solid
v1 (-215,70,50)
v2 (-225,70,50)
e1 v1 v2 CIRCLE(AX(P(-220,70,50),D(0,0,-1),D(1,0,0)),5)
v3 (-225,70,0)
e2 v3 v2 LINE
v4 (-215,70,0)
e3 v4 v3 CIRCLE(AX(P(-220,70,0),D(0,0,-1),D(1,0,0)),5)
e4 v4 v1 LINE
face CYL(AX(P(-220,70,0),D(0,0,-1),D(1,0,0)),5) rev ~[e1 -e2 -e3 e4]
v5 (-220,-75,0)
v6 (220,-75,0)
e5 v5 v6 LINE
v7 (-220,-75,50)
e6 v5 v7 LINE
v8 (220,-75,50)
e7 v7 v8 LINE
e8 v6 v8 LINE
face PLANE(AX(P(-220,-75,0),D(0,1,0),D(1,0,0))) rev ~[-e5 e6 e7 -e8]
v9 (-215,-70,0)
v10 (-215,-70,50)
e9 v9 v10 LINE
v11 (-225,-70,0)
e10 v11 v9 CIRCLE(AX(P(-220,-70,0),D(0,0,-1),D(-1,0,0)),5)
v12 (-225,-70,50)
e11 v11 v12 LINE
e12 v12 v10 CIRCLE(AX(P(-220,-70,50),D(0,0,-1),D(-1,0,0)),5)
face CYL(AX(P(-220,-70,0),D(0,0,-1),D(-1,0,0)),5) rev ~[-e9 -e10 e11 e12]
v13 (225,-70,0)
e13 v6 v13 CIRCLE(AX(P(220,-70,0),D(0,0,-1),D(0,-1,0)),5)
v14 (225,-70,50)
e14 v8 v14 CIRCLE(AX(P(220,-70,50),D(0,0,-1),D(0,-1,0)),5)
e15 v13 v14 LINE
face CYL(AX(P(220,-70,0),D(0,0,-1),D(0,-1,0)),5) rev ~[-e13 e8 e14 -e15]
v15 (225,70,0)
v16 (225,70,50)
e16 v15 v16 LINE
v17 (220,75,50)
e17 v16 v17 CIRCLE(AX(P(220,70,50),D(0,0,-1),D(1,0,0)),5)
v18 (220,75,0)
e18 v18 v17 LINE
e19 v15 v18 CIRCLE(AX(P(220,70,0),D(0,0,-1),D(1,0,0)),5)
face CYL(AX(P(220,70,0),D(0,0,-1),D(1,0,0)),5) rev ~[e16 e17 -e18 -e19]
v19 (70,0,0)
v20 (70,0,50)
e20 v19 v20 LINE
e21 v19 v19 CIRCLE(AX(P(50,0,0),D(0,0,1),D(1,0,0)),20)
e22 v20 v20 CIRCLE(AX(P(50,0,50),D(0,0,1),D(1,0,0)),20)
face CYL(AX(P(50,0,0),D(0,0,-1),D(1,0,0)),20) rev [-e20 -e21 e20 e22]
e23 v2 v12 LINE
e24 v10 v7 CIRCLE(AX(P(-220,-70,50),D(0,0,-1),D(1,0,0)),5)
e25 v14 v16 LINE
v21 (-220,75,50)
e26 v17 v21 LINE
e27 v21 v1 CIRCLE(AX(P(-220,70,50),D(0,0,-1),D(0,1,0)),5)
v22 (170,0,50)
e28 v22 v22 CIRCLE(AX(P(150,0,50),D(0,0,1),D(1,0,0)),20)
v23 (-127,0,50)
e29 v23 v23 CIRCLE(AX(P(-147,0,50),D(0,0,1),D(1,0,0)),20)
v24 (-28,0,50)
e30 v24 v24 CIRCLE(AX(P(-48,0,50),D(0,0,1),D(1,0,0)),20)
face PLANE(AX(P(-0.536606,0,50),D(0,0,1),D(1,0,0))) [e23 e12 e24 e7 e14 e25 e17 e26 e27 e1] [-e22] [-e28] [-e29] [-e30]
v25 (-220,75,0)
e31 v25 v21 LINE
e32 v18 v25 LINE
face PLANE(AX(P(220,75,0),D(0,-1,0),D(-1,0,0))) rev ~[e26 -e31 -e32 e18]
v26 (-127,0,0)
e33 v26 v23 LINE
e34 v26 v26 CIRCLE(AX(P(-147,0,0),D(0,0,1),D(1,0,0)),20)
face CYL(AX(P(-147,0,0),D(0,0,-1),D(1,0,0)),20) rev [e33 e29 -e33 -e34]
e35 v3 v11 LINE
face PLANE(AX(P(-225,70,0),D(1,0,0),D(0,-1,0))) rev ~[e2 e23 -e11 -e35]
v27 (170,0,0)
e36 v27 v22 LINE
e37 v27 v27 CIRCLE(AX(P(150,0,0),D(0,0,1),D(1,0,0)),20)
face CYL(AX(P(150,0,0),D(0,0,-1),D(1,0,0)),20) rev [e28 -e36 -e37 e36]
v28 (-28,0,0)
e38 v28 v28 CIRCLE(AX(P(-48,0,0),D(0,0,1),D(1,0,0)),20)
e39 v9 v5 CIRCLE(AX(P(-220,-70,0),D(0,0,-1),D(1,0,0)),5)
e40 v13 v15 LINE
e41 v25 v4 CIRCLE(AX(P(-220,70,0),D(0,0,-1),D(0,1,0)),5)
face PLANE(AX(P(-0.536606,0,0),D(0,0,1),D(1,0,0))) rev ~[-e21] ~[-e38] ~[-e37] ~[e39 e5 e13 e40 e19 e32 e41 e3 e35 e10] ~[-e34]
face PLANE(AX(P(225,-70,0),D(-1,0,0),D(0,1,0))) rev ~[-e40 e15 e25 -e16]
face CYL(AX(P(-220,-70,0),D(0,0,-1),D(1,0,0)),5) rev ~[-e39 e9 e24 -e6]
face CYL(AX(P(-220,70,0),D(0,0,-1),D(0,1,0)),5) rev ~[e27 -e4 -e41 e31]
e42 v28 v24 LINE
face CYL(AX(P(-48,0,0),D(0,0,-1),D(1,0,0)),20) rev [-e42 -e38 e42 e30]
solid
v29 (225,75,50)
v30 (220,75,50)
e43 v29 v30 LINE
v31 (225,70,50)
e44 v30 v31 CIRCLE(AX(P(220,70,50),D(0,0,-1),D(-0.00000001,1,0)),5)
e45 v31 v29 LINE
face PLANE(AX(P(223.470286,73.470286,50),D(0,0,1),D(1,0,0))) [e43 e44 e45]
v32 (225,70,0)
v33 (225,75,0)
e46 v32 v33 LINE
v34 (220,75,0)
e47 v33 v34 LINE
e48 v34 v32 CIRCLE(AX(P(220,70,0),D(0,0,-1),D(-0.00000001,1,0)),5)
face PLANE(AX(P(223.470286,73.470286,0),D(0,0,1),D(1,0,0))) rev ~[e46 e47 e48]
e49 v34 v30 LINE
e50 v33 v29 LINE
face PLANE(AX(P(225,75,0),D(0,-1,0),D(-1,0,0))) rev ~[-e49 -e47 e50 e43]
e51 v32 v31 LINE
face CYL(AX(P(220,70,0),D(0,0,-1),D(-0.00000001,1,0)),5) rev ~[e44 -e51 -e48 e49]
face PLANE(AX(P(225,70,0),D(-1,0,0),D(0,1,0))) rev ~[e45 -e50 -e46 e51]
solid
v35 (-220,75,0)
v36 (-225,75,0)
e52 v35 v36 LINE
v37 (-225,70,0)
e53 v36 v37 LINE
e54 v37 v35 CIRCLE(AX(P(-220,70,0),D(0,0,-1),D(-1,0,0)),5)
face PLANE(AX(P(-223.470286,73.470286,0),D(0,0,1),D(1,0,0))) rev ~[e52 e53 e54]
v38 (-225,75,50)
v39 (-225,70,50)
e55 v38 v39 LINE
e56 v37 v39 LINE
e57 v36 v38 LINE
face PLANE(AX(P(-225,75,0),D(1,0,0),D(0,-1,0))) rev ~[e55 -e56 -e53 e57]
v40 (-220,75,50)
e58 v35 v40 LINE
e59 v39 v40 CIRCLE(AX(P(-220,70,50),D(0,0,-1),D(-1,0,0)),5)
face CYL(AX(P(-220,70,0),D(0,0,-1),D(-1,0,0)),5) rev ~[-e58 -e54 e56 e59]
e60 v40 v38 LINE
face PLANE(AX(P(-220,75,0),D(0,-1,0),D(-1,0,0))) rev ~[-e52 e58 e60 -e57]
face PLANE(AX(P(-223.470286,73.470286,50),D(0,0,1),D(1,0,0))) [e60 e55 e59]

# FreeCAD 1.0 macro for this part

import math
import FreeCAD as App
import Part
import Sketcher

doc = App.newDocument("Part")
body = doc.addObject("PartDesign::Body", "Body")

# Sketch on XY plane
sketch1 = body.newObject("Sketcher::SketchObject", "Sketch")
sketch1.AttachmentSupport = (doc.getObject("XY_Plane"), [""])
sketch1.MapMode = "FlatFace"
sketch1.addGeometry([
    Part.LineSegment(App.Vector(-220, 75, 0), App.Vector(-225, 75, 0)),
    Part.LineSegment(App.Vector(-225, 75, 0), App.Vector(-225, 70, 0)),
    Part.ArcOfCircle(Part.Circle(App.Vector(-220, 70, 0), App.Vector(0, 0, 1), 5), math.radians(90), math.radians(180)),
], False)
sketch1.addConstraint([
    Sketcher.Constraint("Coincident", 0, 2, 1, 1),
    Sketcher.Constraint("Tangent", 1, 2, 2, 2),
    Sketcher.Constraint("Tangent", 2, 1, 0, 1),
    Sketcher.Constraint("Horizontal", 0),
    Sketcher.Constraint("Vertical", 1),
    Sketcher.Constraint("Radius", 2, 5.0),
    Sketcher.Constraint("DistanceX", 2, 3, -1, 1, 220.0),
    Sketcher.Constraint("DistanceY", -1, 1, 2, 3, 70.0),
])
pad1 = body.newObject("PartDesign::Pad", "Pad")
pad1.Profile = sketch1
pad1.Length = 50
body2 = doc.addObject("PartDesign::Body", "Body001")

# Sketch on XY plane
sketch2 = body2.newObject("Sketcher::SketchObject", "Sketch001")
sketch2.AttachmentSupport = (doc.getObject("XY_Plane001"), [""])
sketch2.MapMode = "FlatFace"
sketch2.addGeometry([
    Part.LineSegment(App.Vector(220, 75, 0), App.Vector(-220, 75, 0)),  # 0
    Part.ArcOfCircle(Part.Circle(App.Vector(-220, 70, 0), App.Vector(0, 0, 1), 5), math.radians(0), math.radians(90)),  # 1
    Part.ArcOfCircle(Part.Circle(App.Vector(-220, 70, 0), App.Vector(0, 0, 1), 5), math.radians(180), math.radians(360)),  # 2
    Part.LineSegment(App.Vector(-225, 70, 0), App.Vector(-225, -70, 0)),  # 3
    Part.ArcOfCircle(Part.Circle(App.Vector(-220, -70, 0), App.Vector(0, 0, 1), 5), math.radians(0), math.radians(180)),  # 4
    Part.ArcOfCircle(Part.Circle(App.Vector(-220, -70, 0), App.Vector(0, 0, 1), 5), math.radians(-90), math.radians(0)),  # 5
    Part.LineSegment(App.Vector(-220, -75, 0), App.Vector(220, -75, 0)),  # 6
    Part.ArcOfCircle(Part.Circle(App.Vector(220, -70, 0), App.Vector(0, 0, 1), 5), math.radians(0), math.radians(270)),  # 7
    Part.LineSegment(App.Vector(225, -70, 0), App.Vector(225, 70, 0)),  # 8
    Part.ArcOfCircle(Part.Circle(App.Vector(220, 70, 0), App.Vector(0, 0, 1), 5), math.radians(90.000001), math.radians(360)),  # 9
    Part.Circle(App.Vector(-147, 0, 0), App.Vector(0, 0, 1), 20),  # 10
    Part.Circle(App.Vector(-48, 0, 0), App.Vector(0, 0, 1), 20),  # 11
    Part.Circle(App.Vector(50, 0, 0), App.Vector(0, 0, 1), 20),  # 12
    Part.Circle(App.Vector(150, 0, 0), App.Vector(0, 0, 1), 20),  # 13
], False)
sketch2.addConstraint([
    Sketcher.Constraint("Tangent", 0, 2, 1, 2),
    Sketcher.Constraint("Tangent", 1, 1, 2, 2),
    Sketcher.Constraint("Tangent", 2, 1, 3, 1),
    Sketcher.Constraint("Tangent", 3, 2, 4, 2),
    Sketcher.Constraint("Tangent", 4, 1, 5, 2),
    Sketcher.Constraint("Tangent", 5, 1, 6, 1),
    Sketcher.Constraint("Tangent", 6, 2, 7, 2),
    Sketcher.Constraint("Tangent", 7, 1, 8, 1),
    Sketcher.Constraint("Tangent", 8, 2, 9, 2),
    Sketcher.Constraint("Tangent", 9, 1, 0, 1),
    Sketcher.Constraint("Horizontal", 0),
    Sketcher.Constraint("Vertical", 3),
    Sketcher.Constraint("Horizontal", 6),
    Sketcher.Constraint("Vertical", 8),
    Sketcher.Constraint("Equal", 1, 2),
    Sketcher.Constraint("Equal", 2, 4),
    Sketcher.Constraint("Equal", 4, 5),
    Sketcher.Constraint("Equal", 5, 7),
    Sketcher.Constraint("Equal", 7, 9),
    Sketcher.Constraint("Equal", 10, 11),
    Sketcher.Constraint("Equal", 11, 12),
    Sketcher.Constraint("Equal", 12, 13),
    Sketcher.Constraint("Symmetric", 1, 3, 7, 3, -1, 1),
    Sketcher.Constraint("PointOnObject", 10, 3, -1),
    Sketcher.Constraint("PointOnObject", 11, 3, -1),
    Sketcher.Constraint("PointOnObject", 12, 3, -1),
    Sketcher.Constraint("PointOnObject", 13, 3, -1),
    Sketcher.Constraint("Horizontal", 9, 3, 1, 1),
    Sketcher.Constraint("Horizontal", 3, 2, 4, 1),
    Sketcher.Constraint("Diameter", 10, 40.0),
    Sketcher.Constraint("Radius", 1, 5.0),
    Sketcher.Constraint("DistanceX", 0, 2, 0, 1, 440.0),
    Sketcher.Constraint("DistanceY", 3, 2, 3, 1, 140.0),
    Sketcher.Constraint("DistanceX", 10, 3, -1, 1, 147.0),
    Sketcher.Constraint("DistanceX", 11, 3, -1, 1, 48.0),
    Sketcher.Constraint("DistanceX", -1, 1, 12, 3, 50.0),
    Sketcher.Constraint("DistanceX", -1, 1, 13, 3, 150.0),
])
pad2 = body2.newObject("PartDesign::Pad", "Pad001")
pad2.Profile = sketch2
pad2.Length = 50
body3 = doc.addObject("PartDesign::Body", "Body002")

# Sketch on XY plane
sketch3 = body3.newObject("Sketcher::SketchObject", "Sketch002")
sketch3.AttachmentSupport = (doc.getObject("XY_Plane002"), [""])
sketch3.MapMode = "FlatFace"
sketch3.addGeometry([
    Part.LineSegment(App.Vector(225, 75, 0), App.Vector(220, 75, 0)),
    Part.ArcOfCircle(Part.Circle(App.Vector(220, 70, 0), App.Vector(0, 0, 1), 5), math.radians(0), math.radians(90.000001)),
    Part.LineSegment(App.Vector(225, 70, 0), App.Vector(225, 75, 0)),
], False)
sketch3.addConstraint([
    Sketcher.Constraint("Tangent", 0, 2, 1, 2),
    Sketcher.Constraint("Tangent", 1, 1, 2, 1),
    Sketcher.Constraint("Coincident", 2, 2, 0, 1),
    Sketcher.Constraint("Horizontal", 0),
    Sketcher.Constraint("Vertical", 2),
    Sketcher.Constraint("Radius", 1, 5.0),
    Sketcher.Constraint("DistanceX", -1, 1, 1, 3, 220.0),
    Sketcher.Constraint("DistanceY", -1, 1, 1, 3, 70.0),
])
pad3 = body3.newObject("PartDesign::Pad", "Pad002")
pad3.Profile = sketch3
pad3.Length = 50

doc.recompute()
